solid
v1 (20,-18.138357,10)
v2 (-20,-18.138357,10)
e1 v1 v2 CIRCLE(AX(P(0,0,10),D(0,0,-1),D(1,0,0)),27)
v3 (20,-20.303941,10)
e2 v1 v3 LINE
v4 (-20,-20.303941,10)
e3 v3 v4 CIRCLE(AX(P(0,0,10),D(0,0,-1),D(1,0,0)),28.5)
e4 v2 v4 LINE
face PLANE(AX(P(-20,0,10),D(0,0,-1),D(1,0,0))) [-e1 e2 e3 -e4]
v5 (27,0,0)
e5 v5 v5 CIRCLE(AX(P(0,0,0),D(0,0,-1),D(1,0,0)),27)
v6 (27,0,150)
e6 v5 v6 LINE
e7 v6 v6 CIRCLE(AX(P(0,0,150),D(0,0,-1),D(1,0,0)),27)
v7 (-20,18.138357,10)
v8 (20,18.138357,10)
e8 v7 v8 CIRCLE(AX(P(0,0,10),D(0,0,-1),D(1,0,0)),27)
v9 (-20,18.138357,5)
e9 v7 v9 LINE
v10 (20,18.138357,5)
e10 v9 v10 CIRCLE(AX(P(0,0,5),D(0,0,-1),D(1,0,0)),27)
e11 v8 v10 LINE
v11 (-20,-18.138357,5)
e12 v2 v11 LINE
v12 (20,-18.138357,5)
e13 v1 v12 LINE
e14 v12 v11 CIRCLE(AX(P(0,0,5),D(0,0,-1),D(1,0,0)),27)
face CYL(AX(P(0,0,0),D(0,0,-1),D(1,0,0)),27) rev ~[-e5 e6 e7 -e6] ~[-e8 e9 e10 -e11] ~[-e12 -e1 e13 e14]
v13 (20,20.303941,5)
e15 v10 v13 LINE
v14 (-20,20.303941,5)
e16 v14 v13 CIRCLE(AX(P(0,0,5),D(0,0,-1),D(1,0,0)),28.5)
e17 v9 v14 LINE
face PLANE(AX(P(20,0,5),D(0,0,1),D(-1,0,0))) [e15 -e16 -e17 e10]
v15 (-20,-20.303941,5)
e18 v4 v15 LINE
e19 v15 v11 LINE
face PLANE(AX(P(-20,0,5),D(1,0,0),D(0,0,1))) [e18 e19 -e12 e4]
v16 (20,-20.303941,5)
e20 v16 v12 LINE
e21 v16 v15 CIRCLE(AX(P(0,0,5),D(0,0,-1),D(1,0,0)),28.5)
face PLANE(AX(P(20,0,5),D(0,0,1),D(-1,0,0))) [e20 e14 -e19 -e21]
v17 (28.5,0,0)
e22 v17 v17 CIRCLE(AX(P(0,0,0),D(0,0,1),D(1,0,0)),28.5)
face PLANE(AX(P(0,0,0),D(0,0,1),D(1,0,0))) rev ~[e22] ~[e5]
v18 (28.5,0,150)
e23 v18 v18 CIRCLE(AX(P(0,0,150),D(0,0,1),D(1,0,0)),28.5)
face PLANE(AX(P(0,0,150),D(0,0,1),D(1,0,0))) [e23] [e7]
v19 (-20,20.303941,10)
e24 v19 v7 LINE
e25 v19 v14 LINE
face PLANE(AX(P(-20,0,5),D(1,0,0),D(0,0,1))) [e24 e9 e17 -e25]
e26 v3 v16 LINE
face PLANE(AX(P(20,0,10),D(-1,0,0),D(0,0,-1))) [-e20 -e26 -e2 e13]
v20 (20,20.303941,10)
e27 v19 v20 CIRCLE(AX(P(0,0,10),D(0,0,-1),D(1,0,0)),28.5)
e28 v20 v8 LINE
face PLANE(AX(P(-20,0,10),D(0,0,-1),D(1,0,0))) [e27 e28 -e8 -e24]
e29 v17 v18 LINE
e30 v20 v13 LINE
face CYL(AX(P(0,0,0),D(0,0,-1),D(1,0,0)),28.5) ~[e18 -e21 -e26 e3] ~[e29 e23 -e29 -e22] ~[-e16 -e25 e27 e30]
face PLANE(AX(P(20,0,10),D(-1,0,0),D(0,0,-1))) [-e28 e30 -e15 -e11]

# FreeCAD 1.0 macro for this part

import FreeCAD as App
import Part
import Sketcher

doc = App.newDocument("Part")
body = doc.addObject("PartDesign::Body", "Body")

# Sketch on XY plane
sketch1 = body.newObject("Sketcher::SketchObject", "Sketch")
sketch1.AttachmentSupport = (doc.getObject("XY_Plane"), [""])
sketch1.MapMode = "FlatFace"
sketch1.addGeometry(Part.Circle(App.Vector(0, 0, 0), App.Vector(0, 0, 1), 28), False)
sketch1.addConstraint([
    Sketcher.Constraint("Coincident", 0, 3, -1, 1),
    Sketcher.Constraint("Diameter", 0, 57.0),
])
pad1 = body.newObject("PartDesign::Pad", "Pad")
pad1.Profile = sketch1
pad1.Length = 150

# Sketch on XY plane
sketch2 = body.newObject("Sketcher::SketchObject", "Sketch001")
sketch2.AttachmentSupport = (doc.getObject("XY_Plane"), [""])
sketch2.MapMode = "FlatFace"
sketch2.addGeometry(Part.Circle(App.Vector(0, 0, 0), App.Vector(0, 0, 1), 27), False)
sketch2.addConstraint([
    Sketcher.Constraint("Coincident", 0, 3, -1, 1),
    Sketcher.Constraint("Diameter", 0, 54.0),
])
pocket1 = body.newObject("PartDesign::Pocket", "Pocket")
pocket1.Profile = sketch2
pocket1.Length = 530
pocket1.Reversed = True

# Sketch on XZ plane
sketch3 = body.newObject("Sketcher::SketchObject", "Sketch002")
sketch3.AttachmentSupport = (doc.getObject("XZ_Plane"), [""])
sketch3.MapMode = "FlatFace"
sketch3.addGeometry([
    Part.LineSegment(App.Vector(20, 10, 0), App.Vector(20, 5, 0)),
    Part.LineSegment(App.Vector(20, 5, 0), App.Vector(-20, 5, 0)),
    Part.LineSegment(App.Vector(-20, 5, 0), App.Vector(-20, 10, 0)),
    Part.LineSegment(App.Vector(-20, 10, 0), App.Vector(20, 10, 0)),
], False)
sketch3.addConstraint([
    Sketcher.Constraint("Coincident", 0, 2, 1, 1),
    Sketcher.Constraint("Coincident", 1, 2, 2, 1),
    Sketcher.Constraint("Coincident", 2, 2, 3, 1),
    Sketcher.Constraint("Coincident", 3, 2, 0, 1),
    Sketcher.Constraint("Vertical", 0),
    Sketcher.Constraint("Horizontal", 1),
    Sketcher.Constraint("Vertical", 2),
    Sketcher.Constraint("Horizontal", 3),
    Sketcher.Constraint("DistanceX", 1, 2, 1, 1, 40.0),
    Sketcher.Constraint("DistanceY", 0, 2, 0, 1, 5.0),
    Sketcher.Constraint("DistanceX", -1, 1, 0, 2, 20.0),
    Sketcher.Constraint("DistanceY", -1, 1, 0, 2, 5.0),
])
pocket2 = body.newObject("PartDesign::Pocket", "Pocket001")
pocket2.Profile = sketch3
pocket2.Type = "ThroughAll"
pocket2.Midplane = True

doc.recompute()
